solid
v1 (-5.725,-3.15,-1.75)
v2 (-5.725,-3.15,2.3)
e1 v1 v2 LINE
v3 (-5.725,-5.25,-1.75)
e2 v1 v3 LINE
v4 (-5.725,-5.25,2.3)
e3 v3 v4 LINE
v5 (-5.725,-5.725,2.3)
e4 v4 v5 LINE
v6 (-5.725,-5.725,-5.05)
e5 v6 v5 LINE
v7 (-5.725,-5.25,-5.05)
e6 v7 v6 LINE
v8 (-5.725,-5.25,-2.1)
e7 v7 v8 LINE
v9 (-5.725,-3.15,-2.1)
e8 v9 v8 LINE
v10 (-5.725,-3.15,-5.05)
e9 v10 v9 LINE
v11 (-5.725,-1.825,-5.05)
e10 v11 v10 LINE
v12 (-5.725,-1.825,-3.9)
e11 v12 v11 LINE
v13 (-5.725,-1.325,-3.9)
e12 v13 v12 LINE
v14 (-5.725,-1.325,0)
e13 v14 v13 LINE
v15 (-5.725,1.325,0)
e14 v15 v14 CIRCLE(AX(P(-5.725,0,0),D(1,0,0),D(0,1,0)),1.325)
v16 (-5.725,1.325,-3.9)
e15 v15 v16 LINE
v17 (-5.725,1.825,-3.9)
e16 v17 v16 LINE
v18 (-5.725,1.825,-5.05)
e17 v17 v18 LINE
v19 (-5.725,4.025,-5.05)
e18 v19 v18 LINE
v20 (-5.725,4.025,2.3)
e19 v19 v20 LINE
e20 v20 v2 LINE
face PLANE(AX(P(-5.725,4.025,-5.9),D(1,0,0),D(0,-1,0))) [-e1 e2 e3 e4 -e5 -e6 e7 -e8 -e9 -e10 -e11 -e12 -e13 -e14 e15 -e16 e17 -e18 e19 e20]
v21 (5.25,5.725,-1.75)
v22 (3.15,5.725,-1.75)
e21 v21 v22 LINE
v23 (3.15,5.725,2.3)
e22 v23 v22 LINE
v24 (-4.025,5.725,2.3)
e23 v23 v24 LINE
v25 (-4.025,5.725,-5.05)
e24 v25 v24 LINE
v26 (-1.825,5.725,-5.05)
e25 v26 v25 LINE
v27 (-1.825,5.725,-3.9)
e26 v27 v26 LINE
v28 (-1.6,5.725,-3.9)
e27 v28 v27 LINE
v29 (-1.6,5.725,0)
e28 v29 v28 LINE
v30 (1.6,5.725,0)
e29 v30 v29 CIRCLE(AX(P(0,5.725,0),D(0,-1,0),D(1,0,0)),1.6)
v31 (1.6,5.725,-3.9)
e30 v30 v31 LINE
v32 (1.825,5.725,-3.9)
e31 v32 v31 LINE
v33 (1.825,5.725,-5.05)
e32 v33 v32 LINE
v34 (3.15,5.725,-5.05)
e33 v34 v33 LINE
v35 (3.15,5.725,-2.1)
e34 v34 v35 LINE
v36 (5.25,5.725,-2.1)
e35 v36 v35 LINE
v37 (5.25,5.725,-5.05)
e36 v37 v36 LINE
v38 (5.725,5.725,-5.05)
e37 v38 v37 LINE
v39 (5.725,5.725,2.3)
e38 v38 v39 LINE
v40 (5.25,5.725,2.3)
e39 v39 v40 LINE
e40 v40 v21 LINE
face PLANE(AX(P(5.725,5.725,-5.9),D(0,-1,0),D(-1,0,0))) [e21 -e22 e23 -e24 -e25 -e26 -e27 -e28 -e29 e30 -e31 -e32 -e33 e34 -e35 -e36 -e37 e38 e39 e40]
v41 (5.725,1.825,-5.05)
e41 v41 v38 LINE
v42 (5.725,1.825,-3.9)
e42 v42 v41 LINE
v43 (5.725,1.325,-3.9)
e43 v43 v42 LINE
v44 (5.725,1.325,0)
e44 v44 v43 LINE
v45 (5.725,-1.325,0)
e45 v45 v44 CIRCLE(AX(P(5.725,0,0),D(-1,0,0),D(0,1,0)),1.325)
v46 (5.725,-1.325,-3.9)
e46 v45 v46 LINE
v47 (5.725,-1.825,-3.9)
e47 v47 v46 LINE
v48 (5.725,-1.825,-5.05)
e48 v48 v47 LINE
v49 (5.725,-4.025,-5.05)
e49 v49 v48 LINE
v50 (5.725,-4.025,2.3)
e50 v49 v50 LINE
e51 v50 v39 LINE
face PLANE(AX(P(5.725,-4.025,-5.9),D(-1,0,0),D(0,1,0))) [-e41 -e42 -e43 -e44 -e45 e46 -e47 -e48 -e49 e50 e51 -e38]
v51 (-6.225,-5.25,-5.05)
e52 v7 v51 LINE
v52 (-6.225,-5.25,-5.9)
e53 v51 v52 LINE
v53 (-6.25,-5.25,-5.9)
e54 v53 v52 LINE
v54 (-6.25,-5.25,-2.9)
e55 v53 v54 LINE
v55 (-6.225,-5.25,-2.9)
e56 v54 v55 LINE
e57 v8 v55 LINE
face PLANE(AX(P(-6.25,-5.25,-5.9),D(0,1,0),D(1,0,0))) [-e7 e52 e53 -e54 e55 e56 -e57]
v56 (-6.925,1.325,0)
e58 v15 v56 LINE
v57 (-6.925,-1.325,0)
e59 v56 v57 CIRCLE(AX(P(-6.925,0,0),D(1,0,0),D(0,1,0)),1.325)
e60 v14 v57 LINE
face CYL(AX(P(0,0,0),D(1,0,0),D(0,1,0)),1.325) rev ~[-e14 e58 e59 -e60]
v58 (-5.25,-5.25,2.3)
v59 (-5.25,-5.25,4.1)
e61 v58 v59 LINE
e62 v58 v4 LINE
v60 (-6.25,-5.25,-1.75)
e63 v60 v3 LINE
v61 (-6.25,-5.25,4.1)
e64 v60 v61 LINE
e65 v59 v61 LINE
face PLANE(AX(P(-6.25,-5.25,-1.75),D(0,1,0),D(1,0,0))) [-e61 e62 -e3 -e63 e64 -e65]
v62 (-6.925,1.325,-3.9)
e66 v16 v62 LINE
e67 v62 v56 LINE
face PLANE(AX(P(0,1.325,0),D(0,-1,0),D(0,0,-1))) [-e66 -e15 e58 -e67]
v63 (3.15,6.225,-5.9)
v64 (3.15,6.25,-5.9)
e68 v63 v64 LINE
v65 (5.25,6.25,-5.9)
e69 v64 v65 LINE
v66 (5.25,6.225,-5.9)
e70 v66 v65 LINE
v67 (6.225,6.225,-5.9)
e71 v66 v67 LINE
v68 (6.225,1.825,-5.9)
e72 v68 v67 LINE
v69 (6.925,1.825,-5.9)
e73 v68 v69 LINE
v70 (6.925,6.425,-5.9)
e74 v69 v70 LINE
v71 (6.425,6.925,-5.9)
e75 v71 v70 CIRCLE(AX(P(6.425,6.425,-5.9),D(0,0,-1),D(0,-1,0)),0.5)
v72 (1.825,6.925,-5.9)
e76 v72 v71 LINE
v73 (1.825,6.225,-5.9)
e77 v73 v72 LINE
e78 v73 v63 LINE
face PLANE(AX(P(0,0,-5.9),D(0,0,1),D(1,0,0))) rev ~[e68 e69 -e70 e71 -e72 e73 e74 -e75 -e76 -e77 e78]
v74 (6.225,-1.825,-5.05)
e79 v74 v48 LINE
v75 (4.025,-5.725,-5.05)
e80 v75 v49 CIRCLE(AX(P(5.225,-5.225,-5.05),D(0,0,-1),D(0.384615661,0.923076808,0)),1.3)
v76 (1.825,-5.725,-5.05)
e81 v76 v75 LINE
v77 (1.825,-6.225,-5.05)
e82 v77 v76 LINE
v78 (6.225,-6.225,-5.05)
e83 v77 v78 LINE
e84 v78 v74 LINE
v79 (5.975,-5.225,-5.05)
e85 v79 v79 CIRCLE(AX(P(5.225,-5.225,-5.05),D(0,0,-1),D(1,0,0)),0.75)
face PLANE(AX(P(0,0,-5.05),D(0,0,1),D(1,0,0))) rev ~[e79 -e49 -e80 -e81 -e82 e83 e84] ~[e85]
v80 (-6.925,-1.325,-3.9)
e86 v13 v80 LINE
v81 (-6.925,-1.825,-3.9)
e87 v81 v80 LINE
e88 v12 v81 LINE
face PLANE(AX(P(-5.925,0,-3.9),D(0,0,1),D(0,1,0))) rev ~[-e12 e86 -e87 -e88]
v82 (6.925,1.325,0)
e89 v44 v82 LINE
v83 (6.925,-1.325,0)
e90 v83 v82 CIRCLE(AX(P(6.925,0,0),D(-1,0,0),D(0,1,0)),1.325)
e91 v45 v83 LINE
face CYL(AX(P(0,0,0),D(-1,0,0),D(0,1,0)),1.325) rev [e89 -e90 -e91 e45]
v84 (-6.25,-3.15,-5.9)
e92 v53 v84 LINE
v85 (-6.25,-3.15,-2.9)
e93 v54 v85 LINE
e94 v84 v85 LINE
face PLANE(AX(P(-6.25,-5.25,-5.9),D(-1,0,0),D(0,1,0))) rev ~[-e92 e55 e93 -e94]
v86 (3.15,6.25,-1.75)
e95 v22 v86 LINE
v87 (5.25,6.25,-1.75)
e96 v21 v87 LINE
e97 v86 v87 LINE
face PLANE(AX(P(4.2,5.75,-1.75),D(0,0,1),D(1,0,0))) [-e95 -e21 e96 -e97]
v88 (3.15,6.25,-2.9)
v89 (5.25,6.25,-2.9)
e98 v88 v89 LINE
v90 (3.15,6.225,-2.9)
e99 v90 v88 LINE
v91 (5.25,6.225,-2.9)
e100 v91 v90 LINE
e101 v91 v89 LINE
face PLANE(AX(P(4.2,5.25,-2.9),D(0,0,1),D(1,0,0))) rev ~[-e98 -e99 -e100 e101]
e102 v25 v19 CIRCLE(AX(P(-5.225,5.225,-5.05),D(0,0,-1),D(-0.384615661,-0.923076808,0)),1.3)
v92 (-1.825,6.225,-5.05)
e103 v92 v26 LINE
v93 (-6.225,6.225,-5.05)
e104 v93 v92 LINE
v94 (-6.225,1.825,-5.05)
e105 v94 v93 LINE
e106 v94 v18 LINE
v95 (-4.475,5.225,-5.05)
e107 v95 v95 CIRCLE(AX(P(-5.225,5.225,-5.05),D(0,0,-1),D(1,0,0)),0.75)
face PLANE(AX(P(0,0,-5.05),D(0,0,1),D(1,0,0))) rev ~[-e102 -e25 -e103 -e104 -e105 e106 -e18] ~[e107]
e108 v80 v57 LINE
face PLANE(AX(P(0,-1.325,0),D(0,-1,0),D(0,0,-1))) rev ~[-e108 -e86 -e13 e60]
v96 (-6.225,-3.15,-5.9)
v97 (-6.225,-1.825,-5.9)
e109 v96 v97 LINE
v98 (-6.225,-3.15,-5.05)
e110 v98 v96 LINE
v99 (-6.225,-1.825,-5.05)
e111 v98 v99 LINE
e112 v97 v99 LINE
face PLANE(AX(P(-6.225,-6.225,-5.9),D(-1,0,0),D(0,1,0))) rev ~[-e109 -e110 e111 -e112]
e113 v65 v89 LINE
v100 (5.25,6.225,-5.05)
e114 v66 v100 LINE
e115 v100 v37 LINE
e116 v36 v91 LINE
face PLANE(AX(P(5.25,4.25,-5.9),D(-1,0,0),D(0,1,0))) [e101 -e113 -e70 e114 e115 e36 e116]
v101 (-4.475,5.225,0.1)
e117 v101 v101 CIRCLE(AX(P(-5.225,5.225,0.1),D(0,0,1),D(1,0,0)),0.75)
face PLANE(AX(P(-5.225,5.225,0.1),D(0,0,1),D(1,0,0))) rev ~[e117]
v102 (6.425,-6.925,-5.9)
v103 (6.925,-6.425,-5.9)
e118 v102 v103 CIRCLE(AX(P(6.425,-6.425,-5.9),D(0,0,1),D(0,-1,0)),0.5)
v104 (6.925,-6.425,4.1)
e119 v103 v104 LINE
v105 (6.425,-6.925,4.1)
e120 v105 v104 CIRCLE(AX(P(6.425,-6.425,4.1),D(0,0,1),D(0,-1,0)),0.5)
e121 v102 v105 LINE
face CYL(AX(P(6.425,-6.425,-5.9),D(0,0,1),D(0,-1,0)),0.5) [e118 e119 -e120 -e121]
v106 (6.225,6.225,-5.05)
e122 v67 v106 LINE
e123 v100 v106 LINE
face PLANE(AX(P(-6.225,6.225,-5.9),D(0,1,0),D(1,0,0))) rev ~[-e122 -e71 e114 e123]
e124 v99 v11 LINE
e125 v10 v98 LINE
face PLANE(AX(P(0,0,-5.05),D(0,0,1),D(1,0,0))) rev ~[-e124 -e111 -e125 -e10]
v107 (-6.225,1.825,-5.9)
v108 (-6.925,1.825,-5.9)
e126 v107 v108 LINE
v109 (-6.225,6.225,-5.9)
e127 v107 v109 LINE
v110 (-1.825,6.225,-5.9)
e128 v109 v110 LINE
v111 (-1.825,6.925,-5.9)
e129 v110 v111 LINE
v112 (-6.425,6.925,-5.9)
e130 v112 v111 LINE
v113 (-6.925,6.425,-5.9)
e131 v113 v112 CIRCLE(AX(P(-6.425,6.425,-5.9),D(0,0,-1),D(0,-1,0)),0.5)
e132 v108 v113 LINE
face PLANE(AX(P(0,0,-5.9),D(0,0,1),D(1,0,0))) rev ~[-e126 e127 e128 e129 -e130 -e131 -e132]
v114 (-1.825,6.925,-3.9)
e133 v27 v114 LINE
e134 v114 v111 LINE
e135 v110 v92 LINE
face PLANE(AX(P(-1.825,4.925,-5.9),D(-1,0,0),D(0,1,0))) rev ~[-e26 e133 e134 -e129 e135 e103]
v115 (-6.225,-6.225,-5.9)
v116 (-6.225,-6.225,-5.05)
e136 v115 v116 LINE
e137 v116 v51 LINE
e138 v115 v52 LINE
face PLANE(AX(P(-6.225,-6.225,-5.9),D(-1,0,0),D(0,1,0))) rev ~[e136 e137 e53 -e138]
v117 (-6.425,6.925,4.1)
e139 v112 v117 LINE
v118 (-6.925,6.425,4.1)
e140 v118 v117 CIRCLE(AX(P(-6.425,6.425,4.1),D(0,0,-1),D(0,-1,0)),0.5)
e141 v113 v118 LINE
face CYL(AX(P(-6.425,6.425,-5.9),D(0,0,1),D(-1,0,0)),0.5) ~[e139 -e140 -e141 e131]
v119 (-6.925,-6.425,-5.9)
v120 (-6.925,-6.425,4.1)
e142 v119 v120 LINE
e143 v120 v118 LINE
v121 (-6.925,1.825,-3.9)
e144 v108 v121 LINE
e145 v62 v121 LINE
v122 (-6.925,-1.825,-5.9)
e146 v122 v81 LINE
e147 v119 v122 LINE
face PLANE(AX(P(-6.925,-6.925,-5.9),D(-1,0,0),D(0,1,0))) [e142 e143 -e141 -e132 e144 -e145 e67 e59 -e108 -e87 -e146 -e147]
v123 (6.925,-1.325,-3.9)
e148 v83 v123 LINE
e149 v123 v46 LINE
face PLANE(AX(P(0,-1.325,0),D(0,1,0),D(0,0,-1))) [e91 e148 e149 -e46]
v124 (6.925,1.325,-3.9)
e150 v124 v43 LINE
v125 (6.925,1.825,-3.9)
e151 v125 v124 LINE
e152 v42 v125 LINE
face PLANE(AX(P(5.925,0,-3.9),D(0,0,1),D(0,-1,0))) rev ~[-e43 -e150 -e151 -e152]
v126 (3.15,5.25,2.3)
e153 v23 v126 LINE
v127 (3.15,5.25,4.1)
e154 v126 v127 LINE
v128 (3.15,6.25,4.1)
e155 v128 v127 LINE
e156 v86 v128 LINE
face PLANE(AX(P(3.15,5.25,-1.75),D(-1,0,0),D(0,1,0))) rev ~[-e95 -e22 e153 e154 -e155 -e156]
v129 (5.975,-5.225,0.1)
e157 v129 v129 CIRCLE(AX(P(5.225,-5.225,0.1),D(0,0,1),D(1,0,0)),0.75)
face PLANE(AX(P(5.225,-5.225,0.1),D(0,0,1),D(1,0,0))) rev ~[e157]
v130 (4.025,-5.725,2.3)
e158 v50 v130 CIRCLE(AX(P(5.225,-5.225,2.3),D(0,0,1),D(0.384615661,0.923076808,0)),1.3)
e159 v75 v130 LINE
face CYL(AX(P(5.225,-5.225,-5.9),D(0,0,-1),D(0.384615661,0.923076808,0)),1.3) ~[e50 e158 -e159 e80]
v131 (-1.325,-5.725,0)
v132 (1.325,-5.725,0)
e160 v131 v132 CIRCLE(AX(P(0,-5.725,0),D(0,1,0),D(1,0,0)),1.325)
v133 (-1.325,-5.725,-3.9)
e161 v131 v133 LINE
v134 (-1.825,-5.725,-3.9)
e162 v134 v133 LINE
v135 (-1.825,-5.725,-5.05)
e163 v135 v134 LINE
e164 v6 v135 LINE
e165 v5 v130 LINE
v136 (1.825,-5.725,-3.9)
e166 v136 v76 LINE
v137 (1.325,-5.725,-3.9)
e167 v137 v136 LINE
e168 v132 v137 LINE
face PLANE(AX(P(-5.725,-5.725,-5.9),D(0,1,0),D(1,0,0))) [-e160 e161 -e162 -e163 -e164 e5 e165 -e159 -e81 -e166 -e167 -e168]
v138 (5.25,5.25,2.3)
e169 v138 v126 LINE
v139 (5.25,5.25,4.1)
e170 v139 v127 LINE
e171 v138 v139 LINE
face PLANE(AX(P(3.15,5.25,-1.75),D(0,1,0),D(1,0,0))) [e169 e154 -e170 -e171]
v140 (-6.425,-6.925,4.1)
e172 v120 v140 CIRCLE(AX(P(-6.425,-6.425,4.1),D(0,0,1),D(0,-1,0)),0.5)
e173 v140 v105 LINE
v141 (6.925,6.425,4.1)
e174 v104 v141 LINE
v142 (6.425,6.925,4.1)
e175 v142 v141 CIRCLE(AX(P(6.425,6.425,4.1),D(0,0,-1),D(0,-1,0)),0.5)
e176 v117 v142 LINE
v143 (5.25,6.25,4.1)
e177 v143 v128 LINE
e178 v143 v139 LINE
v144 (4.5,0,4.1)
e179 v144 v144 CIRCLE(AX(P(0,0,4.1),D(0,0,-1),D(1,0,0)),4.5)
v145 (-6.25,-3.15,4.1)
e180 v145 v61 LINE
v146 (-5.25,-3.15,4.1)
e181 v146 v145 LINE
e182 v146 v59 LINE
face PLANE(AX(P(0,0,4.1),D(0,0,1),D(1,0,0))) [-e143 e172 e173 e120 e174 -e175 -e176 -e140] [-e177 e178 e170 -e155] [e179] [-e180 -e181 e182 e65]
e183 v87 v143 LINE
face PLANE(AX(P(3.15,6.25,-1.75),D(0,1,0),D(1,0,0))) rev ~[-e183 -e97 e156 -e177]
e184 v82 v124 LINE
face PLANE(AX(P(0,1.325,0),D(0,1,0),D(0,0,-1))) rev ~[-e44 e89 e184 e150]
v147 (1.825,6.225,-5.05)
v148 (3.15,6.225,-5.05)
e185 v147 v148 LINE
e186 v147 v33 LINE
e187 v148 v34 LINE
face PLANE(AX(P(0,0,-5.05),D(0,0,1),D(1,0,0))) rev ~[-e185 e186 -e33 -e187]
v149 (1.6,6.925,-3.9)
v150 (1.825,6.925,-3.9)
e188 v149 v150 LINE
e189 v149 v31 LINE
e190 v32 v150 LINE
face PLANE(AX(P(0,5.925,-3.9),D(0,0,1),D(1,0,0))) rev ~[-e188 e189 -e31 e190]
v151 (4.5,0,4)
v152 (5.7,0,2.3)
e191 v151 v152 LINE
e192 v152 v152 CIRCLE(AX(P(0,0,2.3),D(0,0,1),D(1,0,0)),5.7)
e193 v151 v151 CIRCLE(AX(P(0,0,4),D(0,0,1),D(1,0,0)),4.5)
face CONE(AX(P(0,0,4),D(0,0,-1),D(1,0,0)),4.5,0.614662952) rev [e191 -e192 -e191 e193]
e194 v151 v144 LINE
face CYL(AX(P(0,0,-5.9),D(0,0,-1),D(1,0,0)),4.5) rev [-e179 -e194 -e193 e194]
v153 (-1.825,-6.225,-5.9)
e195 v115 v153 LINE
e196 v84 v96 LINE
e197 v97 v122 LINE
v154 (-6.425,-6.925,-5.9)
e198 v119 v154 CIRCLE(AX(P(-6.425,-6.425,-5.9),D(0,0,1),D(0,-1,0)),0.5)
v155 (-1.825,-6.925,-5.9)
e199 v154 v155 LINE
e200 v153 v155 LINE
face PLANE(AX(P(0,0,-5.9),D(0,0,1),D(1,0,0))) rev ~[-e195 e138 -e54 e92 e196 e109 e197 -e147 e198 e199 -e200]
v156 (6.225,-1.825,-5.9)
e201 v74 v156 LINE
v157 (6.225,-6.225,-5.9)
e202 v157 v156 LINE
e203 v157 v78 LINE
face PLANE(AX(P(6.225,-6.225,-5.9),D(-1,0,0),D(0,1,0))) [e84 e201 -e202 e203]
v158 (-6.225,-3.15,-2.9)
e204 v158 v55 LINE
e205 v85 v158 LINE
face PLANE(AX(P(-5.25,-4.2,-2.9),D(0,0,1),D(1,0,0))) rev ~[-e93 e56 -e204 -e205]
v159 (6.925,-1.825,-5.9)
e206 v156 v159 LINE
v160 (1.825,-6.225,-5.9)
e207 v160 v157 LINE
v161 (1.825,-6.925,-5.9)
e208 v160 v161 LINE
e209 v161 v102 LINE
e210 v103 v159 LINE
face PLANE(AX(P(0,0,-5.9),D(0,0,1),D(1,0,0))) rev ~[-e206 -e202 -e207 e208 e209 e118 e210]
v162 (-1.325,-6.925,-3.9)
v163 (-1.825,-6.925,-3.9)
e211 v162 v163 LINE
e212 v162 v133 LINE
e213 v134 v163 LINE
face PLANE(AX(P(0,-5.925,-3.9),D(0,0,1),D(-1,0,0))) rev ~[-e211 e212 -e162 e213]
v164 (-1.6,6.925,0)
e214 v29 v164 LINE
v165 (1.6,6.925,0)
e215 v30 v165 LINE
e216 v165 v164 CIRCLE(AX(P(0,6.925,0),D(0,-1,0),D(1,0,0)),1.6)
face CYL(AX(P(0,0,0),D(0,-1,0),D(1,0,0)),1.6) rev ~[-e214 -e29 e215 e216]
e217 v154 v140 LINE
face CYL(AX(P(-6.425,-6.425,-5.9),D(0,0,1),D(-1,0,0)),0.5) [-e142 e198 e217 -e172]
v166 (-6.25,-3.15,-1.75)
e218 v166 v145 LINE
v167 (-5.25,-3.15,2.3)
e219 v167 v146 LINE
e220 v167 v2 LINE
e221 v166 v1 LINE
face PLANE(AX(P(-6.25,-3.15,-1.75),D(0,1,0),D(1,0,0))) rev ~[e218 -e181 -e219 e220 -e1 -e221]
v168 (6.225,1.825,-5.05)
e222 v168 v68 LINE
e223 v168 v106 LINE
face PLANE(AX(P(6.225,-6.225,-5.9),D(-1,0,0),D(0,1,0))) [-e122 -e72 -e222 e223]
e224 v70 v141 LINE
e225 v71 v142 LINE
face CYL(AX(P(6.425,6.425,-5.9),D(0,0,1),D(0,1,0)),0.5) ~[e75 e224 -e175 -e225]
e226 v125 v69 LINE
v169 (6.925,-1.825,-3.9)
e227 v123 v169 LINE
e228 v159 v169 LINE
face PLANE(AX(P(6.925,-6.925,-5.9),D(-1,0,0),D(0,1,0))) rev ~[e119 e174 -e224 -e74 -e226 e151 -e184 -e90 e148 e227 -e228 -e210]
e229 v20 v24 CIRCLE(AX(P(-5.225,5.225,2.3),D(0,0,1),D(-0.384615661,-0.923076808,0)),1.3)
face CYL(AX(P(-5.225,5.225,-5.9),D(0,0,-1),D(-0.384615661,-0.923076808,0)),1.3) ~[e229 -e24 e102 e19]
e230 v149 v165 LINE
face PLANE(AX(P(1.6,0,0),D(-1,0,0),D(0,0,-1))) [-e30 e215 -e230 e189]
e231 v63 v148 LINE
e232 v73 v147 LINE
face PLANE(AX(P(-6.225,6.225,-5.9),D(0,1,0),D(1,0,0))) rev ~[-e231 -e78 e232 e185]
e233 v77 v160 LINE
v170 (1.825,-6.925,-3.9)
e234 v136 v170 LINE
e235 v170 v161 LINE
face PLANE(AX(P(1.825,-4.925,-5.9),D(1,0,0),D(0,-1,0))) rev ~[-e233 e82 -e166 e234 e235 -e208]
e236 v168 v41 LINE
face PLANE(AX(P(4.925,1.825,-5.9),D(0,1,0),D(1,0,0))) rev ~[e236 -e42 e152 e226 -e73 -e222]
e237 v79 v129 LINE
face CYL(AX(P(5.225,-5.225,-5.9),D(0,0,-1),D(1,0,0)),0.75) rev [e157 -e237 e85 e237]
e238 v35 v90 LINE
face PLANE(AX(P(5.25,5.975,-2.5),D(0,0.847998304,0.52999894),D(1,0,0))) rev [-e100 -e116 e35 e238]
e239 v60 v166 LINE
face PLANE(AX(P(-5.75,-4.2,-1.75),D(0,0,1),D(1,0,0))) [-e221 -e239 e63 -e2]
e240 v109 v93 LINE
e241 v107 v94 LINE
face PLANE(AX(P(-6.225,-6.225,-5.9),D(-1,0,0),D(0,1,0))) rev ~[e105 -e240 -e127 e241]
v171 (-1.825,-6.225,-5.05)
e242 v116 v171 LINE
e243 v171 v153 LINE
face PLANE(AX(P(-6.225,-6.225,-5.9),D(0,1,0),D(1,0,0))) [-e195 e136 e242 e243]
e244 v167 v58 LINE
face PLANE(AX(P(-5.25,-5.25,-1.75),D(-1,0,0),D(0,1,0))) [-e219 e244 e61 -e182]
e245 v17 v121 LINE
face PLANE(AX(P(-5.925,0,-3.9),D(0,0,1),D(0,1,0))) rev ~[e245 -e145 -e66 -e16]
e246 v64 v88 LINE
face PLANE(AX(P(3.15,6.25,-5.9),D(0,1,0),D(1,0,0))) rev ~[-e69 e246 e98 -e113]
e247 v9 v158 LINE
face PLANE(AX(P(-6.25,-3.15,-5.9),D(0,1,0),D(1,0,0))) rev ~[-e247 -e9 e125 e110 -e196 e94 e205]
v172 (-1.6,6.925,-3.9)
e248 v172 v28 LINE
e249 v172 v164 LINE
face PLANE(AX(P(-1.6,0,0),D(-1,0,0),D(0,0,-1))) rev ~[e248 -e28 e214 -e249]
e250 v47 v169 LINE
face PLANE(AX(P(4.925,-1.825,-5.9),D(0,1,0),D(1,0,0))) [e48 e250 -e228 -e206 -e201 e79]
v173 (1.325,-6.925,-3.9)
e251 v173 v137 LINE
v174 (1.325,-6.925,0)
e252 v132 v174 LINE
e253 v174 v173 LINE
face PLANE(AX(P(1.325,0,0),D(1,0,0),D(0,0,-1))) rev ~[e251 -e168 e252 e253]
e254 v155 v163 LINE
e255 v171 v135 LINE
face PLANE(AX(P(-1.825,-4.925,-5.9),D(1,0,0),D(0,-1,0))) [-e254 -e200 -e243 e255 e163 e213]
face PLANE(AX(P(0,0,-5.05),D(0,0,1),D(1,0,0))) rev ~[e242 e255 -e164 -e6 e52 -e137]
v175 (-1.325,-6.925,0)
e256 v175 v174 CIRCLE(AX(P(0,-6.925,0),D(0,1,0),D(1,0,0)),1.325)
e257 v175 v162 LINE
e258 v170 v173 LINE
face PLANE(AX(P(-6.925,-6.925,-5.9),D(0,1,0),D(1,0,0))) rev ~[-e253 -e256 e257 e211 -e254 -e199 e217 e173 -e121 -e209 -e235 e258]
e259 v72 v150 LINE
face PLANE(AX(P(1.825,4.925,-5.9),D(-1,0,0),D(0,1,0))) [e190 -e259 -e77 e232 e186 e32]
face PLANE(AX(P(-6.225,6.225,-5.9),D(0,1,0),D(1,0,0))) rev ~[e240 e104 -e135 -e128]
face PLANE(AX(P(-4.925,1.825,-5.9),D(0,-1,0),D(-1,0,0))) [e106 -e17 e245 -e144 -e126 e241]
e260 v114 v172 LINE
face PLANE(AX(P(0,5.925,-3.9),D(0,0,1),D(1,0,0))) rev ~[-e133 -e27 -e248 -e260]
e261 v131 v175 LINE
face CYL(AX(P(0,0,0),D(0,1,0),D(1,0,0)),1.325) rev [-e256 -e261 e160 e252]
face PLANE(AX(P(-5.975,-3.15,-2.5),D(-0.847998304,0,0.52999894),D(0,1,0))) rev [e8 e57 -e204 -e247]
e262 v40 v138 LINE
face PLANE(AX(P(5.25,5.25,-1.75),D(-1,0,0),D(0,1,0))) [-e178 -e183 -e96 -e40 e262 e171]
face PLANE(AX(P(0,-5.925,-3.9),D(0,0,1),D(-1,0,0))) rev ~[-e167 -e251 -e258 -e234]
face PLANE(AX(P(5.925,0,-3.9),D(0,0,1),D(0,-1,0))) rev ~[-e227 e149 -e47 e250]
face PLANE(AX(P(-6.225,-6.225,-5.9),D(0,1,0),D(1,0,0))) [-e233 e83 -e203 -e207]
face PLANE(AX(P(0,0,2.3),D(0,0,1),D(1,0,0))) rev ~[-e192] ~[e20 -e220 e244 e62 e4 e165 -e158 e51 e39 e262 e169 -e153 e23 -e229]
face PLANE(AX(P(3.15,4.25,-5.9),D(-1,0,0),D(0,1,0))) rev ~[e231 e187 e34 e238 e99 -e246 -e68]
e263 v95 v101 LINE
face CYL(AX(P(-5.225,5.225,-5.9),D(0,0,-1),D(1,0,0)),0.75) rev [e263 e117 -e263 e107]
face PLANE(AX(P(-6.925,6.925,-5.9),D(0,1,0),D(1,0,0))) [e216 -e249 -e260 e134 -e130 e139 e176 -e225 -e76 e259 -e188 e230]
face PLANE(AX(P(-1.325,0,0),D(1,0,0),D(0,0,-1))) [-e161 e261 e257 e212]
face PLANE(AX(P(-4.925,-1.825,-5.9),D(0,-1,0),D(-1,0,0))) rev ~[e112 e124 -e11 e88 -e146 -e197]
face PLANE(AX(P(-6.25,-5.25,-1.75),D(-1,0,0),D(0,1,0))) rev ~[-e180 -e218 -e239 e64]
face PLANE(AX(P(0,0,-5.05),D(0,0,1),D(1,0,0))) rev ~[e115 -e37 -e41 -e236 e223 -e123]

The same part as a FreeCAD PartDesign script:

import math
import FreeCAD as App
import Part
import Sketcher

V = App.Vector
Q = App.Units.Quantity


def edges_at(feature, points):
    """Names of the edges that pass closest to the given points."""
    edges = feature.Shape.Edges
    near = lambda p: min(range(len(edges)), key=lambda i: edges[i].distToShape(Part.Vertex(*p))[0])
    return sorted({f"Edge{near(p) + 1}" for p in points})


def add_polygon(sketch, points):
    """Adds a closed chain of lines whose ends are joined by coincident constraints."""
    first, n = sketch.GeometryCount, len(points)
    for a, b in zip(points, points[1:] + points[:1]):
        sketch.addGeometry(Part.LineSegment(App.Vector(*a, 0), App.Vector(*b, 0)), False)
    for i in range(n):
        sketch.addConstraint(Sketcher.Constraint("Coincident", first + i, 2, first + (i + 1) % n, 1))

doc = App.newDocument("Part")
body = doc.addObject("PartDesign::Body", "Body")

# Sketch on XY plane
sketch1 = body.newObject("Sketcher::SketchObject", "Sketch")
sketch1.AttachmentSupport = (doc.getObject("XY_Plane"), [""])
sketch1.MapMode = "FlatFace"
add_polygon(sketch1, [(-7, 7), (-7, -7), (7, -7), (7, 7)])  # lines 0-3
sketch1.addConstraint(Sketcher.Constraint("Vertical", 0))
sketch1.addConstraint(Sketcher.Constraint("Horizontal", 1))
sketch1.addConstraint(Sketcher.Constraint("Vertical", 2))
sketch1.addConstraint(Sketcher.Constraint("Horizontal", 3))
sketch1.addConstraint(Sketcher.Constraint("Symmetric", 0, 2, 2, 2, -1, 1))
sketch1.addConstraint(Sketcher.Constraint("Equal", 3, 0))
sketch1.addConstraint(Sketcher.Constraint("DistanceX", 1, 1, 1, 2, Q("13.85 mm")))
pad1 = body.newObject("PartDesign::Pad", "Pad")
pad1.Profile = sketch1
pad1.Length = 10

# Sketch on XY plane
sketch2 = body.newObject("Sketcher::SketchObject", "Sketch001")
sketch2.AttachmentSupport = (doc.getObject("XY_Plane"), [""])
sketch2.MapMode = "FlatFace"
sketch2.addGeometry(Part.LineSegment(V(-5.7, 4, 0), V(-5.7, -5.7, 0)), False)
sketch2.addGeometry(Part.LineSegment(V(-5.7, -5.7, 0), V(4, -5.7, 0)), False)
sketch2.addGeometry(Part.ArcOfCircle(Part.Circle(V(5.2, -5.2, 0), V(0, 0, 1), 1.3), math.radians(67), math.radians(203)), False)
sketch2.addGeometry(Part.LineSegment(V(5.7, -4, 0), V(5.7, 5.7, 0)), False)
sketch2.addGeometry(Part.LineSegment(V(5.7, 5.7, 0), V(-4, 5.7, 0)), False)
sketch2.addGeometry(Part.ArcOfCircle(Part.Circle(V(-5.2, 5.2, 0), V(0, 0, 1), 1.3), math.radians(-113), math.radians(23)), False)
sketch2.addConstraint(Sketcher.Constraint("Coincident", 0, 2, 1, 1))
sketch2.addConstraint(Sketcher.Constraint("Coincident", 1, 2, 2, 2))
sketch2.addConstraint(Sketcher.Constraint("Coincident", 2, 1, 3, 1))
sketch2.addConstraint(Sketcher.Constraint("Coincident", 3, 2, 4, 1))
sketch2.addConstraint(Sketcher.Constraint("Coincident", 4, 2, 5, 2))
sketch2.addConstraint(Sketcher.Constraint("Coincident", 5, 1, 0, 1))
sketch2.addConstraint(Sketcher.Constraint("Vertical", 0))
sketch2.addConstraint(Sketcher.Constraint("Horizontal", 1))
sketch2.addConstraint(Sketcher.Constraint("Vertical", 3))
sketch2.addConstraint(Sketcher.Constraint("Horizontal", 4))
sketch2.addConstraint(Sketcher.Constraint("Equal", 2, 5))
sketch2.addConstraint(Sketcher.Constraint("Symmetric", 2, 3, 5, 3, -1, 1))
sketch2.addConstraint(Sketcher.Constraint("Symmetric", 0, 2, 3, 2, -1, 1))
sketch2.addConstraint(Sketcher.Constraint("Equal", 4, 0))
sketch2.addConstraint(Sketcher.Constraint("Radius", 2, Q("1.3 mm")))
sketch2.addConstraint(Sketcher.Constraint("DistanceX", 1, 1, 1, 2, Q("9.75 mm")))
sketch2.addConstraint(Sketcher.Constraint("DistanceY", 0, 2, 2, 3, Q("0.5 mm")))
sketch2.addConstraint(Sketcher.Constraint("DistanceX", 0, 2, 5, 3, Q("0.5 mm")))
pocket1 = body.newObject("PartDesign::Pocket", "Pocket")
pocket1.Profile = sketch2
pocket1.Length = 8.2
pocket1.Reversed = True

# Sketch on XY plane
sketch3 = body.newObject("Sketcher::SketchObject", "Sketch002")
sketch3.AttachmentSupport = (doc.getObject("XY_Plane"), [""])
sketch3.MapMode = "FlatFace"
sketch3.addGeometry(Part.Circle(V(0, 0, 0), V(0, 0, 1), 4.5), False)
sketch3.addConstraint(Sketcher.Constraint("Coincident", 0, 3, -1, 1))
sketch3.addConstraint(Sketcher.Constraint("Diameter", 0, Q("9 mm")))
pocket2 = body.newObject("PartDesign::Pocket", "Pocket001")
pocket2.Profile = sketch3
pocket2.Type = "ThroughAll"
pocket2.Midplane = True

# Sketch on XZ plane
sketch4 = body.newObject("Sketcher::SketchObject", "Sketch003")
sketch4.AttachmentSupport = (doc.getObject("XZ_Plane"), [""])
sketch4.MapMode = "FlatFace"
add_polygon(sketch4, [(5.7, 8.2), (4.5, 9.9), (4.5, 8.2)])  # lines 0-2
sketch4.addConstraint(Sketcher.Constraint("Vertical", 1))
sketch4.addConstraint(Sketcher.Constraint("Horizontal", 2))
sketch4.addConstraint(Sketcher.Constraint("DistanceX", 2, 1, 2, 2, Q("1.2 mm")))
sketch4.addConstraint(Sketcher.Constraint("DistanceY", 1, 2, 1, 1, Q("1.7 mm")))
sketch4.addConstraint(Sketcher.Constraint("DistanceX", -1, 1, 0, 2, Q("4.5 mm")))
sketch4.addConstraint(Sketcher.Constraint("DistanceY", -1, 1, 0, 2, Q("9.9 mm")))
groove = body.newObject("PartDesign::Groove", "Groove")
groove.Profile = sketch4
groove.ReferenceAxis = (sketch4, ["V_Axis"])
groove.Angle = 360

# Sketch on XY plane
sketch5 = body.newObject("Sketcher::SketchObject", "Sketch004")
sketch5.AttachmentSupport = (doc.getObject("XY_Plane"), [""])
sketch5.MapMode = "FlatFace"
add_polygon(sketch5, [(-6, 6), (-6, -6), (6, -6), (6, 6)])  # lines 0-3
sketch5.addConstraint(Sketcher.Constraint("Vertical", 0))
sketch5.addConstraint(Sketcher.Constraint("Horizontal", 1))
sketch5.addConstraint(Sketcher.Constraint("Vertical", 2))
sketch5.addConstraint(Sketcher.Constraint("Horizontal", 3))
sketch5.addConstraint(Sketcher.Constraint("Symmetric", 0, 2, 2, 2, -1, 1))
sketch5.addConstraint(Sketcher.Constraint("Equal", 3, 0))
sketch5.addConstraint(Sketcher.Constraint("DistanceX", 1, 1, 1, 2, Q("12.45 mm")))
pocket3 = body.newObject("PartDesign::Pocket", "Pocket002")
pocket3.Profile = sketch5
pocket3.Length = 0.85
pocket3.Reversed = True

# Sketch on XY plane
sketch6 = body.newObject("Sketcher::SketchObject", "Sketch005")
sketch6.AttachmentSupport = (doc.getObject("XY_Plane"), [""])
sketch6.MapMode = "FlatFace"
add_polygon(sketch6, [(-1.8, 6.9), (-1.8, 4.9), (1.8, 4.9), (1.8, 6.9)])  # lines 0-3
sketch6.addConstraint(Sketcher.Constraint("Vertical", 0))
sketch6.addConstraint(Sketcher.Constraint("Horizontal", 1))
sketch6.addConstraint(Sketcher.Constraint("Vertical", 2))
sketch6.addConstraint(Sketcher.Constraint("Horizontal", 3))
sketch6.addConstraint(Sketcher.Constraint("DistanceY", 0, 2, 0, 1, Q("2 mm")))
sketch6.addConstraint(Sketcher.Constraint("DistanceX", 1, 1, 1, 2, Q("3.65 mm")))
sketch6.addConstraint(Sketcher.Constraint("DistanceX", 0, 2, -1, 1, Q("1.825 mm")))
sketch6.addConstraint(Sketcher.Constraint("DistanceY", -1, 1, 0, 2, Q("4.925 mm")))
pocket4 = body.newObject("PartDesign::Pocket", "Pocket003")
pocket4.Profile = sketch6
pocket4.Length = 2
pocket4.Reversed = True
doc.recompute()

polarpattern = body.newObject("PartDesign::PolarPattern", "PolarPattern")
polarpattern.Originals = [pocket4]
polarpattern.Axis = (doc.getObject("Z_Axis"), [""])
polarpattern.Angle = 360
polarpattern.Occurrences = 4
body.Tip = polarpattern

# Sketch on XZ plane
sketch7 = body.newObject("Sketcher::SketchObject", "Sketch006")
sketch7.AttachmentSupport = (doc.getObject("XZ_Plane"), [""])
sketch7.MapMode = "FlatFace"
sketch7.addGeometry(Part.ArcOfCircle(Part.Circle(V(0, 5.9, 0), V(0, 0, 1), 1.6), math.radians(0), math.radians(180)), False)
sketch7.addGeometry(Part.LineSegment(V(-1.6, 5.9, 0), V(-1.6, 1.9, 0)), False)
sketch7.addGeometry(Part.LineSegment(V(-1.6, 1.9, 0), V(-1.82, 1.9, 0)), False)
sketch7.addGeometry(Part.LineSegment(V(-1.82, 1.9, 0), V(-1.82, -0.1, 0)), False)
sketch7.addGeometry(Part.LineSegment(V(-1.82, -0.1, 0), V(1.82, -0.1, 0)), False)
sketch7.addGeometry(Part.LineSegment(V(1.82, -0.1, 0), V(1.82, 1.9, 0)), False)
sketch7.addGeometry(Part.LineSegment(V(1.82, 1.9, 0), V(1.6, 1.9, 0)), False)
sketch7.addGeometry(Part.LineSegment(V(1.6, 1.9, 0), V(1.6, 5.9, 0)), False)
sketch7.addConstraint(Sketcher.Constraint("Tangent", 0, 2, 1, 1))
sketch7.addConstraint(Sketcher.Constraint("Coincident", 1, 2, 2, 1))
sketch7.addConstraint(Sketcher.Constraint("Coincident", 2, 2, 3, 1))
sketch7.addConstraint(Sketcher.Constraint("Coincident", 3, 2, 4, 1))
sketch7.addConstraint(Sketcher.Constraint("Coincident", 4, 2, 5, 1))
sketch7.addConstraint(Sketcher.Constraint("Coincident", 5, 2, 6, 1))
sketch7.addConstraint(Sketcher.Constraint("Coincident", 6, 2, 7, 1))
sketch7.addConstraint(Sketcher.Constraint("Tangent", 7, 2, 0, 1))
sketch7.addConstraint(Sketcher.Constraint("Vertical", 1))
sketch7.addConstraint(Sketcher.Constraint("Horizontal", 2))
sketch7.addConstraint(Sketcher.Constraint("Vertical", 3))
sketch7.addConstraint(Sketcher.Constraint("Horizontal", 4))
sketch7.addConstraint(Sketcher.Constraint("Vertical", 5))
sketch7.addConstraint(Sketcher.Constraint("Horizontal", 6))
sketch7.addConstraint(Sketcher.Constraint("Vertical", 7))
sketch7.addConstraint(Sketcher.Constraint("Symmetric", 2, 2, 5, 2, -2))
sketch7.addConstraint(Sketcher.Constraint("PointOnObject", 0, 3, -2))
sketch7.addConstraint(Sketcher.Constraint("Radius", 0, Q("1.6 mm")))
sketch7.addConstraint(Sketcher.Constraint("DistanceY", 1, 2, 1, 1, Q("4 mm")))
sketch7.addConstraint(Sketcher.Constraint("DistanceY", 3, 2, 3, 1, Q("2 mm")))
sketch7.addConstraint(Sketcher.Constraint("DistanceX", 4, 1, 4, 2, Q("3.65 mm")))
sketch7.addConstraint(Sketcher.Constraint("DistanceY", -1, 1, 0, 3, Q("5.9 mm")))
pocket5 = body.newObject("PartDesign::Pocket", "Pocket004")
pocket5.Profile = sketch7
pocket5.Type = "ThroughAll"

# Sketch on XZ plane
sketch8 = body.newObject("Sketcher::SketchObject", "Sketch007")
sketch8.AttachmentSupport = (doc.getObject("XZ_Plane"), [""])
sketch8.MapMode = "FlatFace"
sketch8.addGeometry(Part.ArcOfCircle(Part.Circle(V(0, 5.9, 0), V(0, 0, 1), 1.3), math.radians(0), math.radians(180)), False)
sketch8.addGeometry(Part.LineSegment(V(-1.3, 5.9, 0), V(-1.3, 1.9, 0)), False)
sketch8.addGeometry(Part.LineSegment(V(-1.3, 1.9, 0), V(-1.8, 1.9, 0)), False)
sketch8.addGeometry(Part.LineSegment(V(-1.8, 1.9, 0), V(-1.8, -0.1, 0)), False)
sketch8.addGeometry(Part.LineSegment(V(-1.8, -0.1, 0), V(1.8, -0.1, 0)), False)
sketch8.addGeometry(Part.LineSegment(V(1.8, -0.1, 0), V(1.8, 1.9, 0)), False)
sketch8.addGeometry(Part.LineSegment(V(1.8, 1.9, 0), V(1.3, 1.9, 0)), False)
sketch8.addGeometry(Part.LineSegment(V(1.3, 1.9, 0), V(1.3, 5.9, 0)), False)
sketch8.addConstraint(Sketcher.Constraint("Tangent", 0, 2, 1, 1))
sketch8.addConstraint(Sketcher.Constraint("Coincident", 1, 2, 2, 1))
sketch8.addConstraint(Sketcher.Constraint("Coincident", 2, 2, 3, 1))
sketch8.addConstraint(Sketcher.Constraint("Coincident", 3, 2, 4, 1))
sketch8.addConstraint(Sketcher.Constraint("Coincident", 4, 2, 5, 1))
sketch8.addConstraint(Sketcher.Constraint("Coincident", 5, 2, 6, 1))
sketch8.addConstraint(Sketcher.Constraint("Coincident", 6, 2, 7, 1))
sketch8.addConstraint(Sketcher.Constraint("Tangent", 7, 2, 0, 1))
sketch8.addConstraint(Sketcher.Constraint("Vertical", 1))
sketch8.addConstraint(Sketcher.Constraint("Horizontal", 2))
sketch8.addConstraint(Sketcher.Constraint("Vertical", 3))
sketch8.addConstraint(Sketcher.Constraint("Horizontal", 4))
sketch8.addConstraint(Sketcher.Constraint("Vertical", 5))
sketch8.addConstraint(Sketcher.Constraint("Horizontal", 6))
sketch8.addConstraint(Sketcher.Constraint("Vertical", 7))
sketch8.addConstraint(Sketcher.Constraint("Symmetric", 2, 2, 5, 2, -2))
sketch8.addConstraint(Sketcher.Constraint("PointOnObject", 0, 3, -2))
sketch8.addConstraint(Sketcher.Constraint("DistanceY", 1, 2, 1, 1, Q("4 mm")))
sketch8.addConstraint(Sketcher.Constraint("DistanceY", 3, 2, 3, 1, Q("2 mm")))
sketch8.addConstraint(Sketcher.Constraint("DistanceX", 2, 2, 2, 1, Q("0.5 mm")))
sketch8.addConstraint(Sketcher.Constraint("Radius", 0, Q("1.325 mm")))
sketch8.addConstraint(Sketcher.Constraint("DistanceY", -1, 1, 0, 3, Q("5.9 mm")))
pocket6 = body.newObject("PartDesign::Pocket", "Pocket005")
pocket6.Profile = sketch8
pocket6.Type = "ThroughAll"
pocket6.Reversed = True

# Sketch on YZ plane
sketch9 = body.newObject("Sketcher::SketchObject", "Sketch008")
sketch9.AttachmentSupport = (doc.getObject("YZ_Plane"), [""])
sketch9.MapMode = "FlatFace"
sketch9.addGeometry(Part.ArcOfCircle(Part.Circle(V(0, 5.9, 0), V(0, 0, 1), 1.3), math.radians(0), math.radians(180)), False)
sketch9.addGeometry(Part.LineSegment(V(-1.3, 5.9, 0), V(-1.3, 1.9, 0)), False)
sketch9.addGeometry(Part.LineSegment(V(-1.3, 1.9, 0), V(-1.8, 1.9, 0)), False)
sketch9.addGeometry(Part.LineSegment(V(-1.8, 1.9, 0), V(-1.8, -0.1, 0)), False)
sketch9.addGeometry(Part.LineSegment(V(-1.8, -0.1, 0), V(1.8, -0.1, 0)), False)
sketch9.addGeometry(Part.LineSegment(V(1.8, -0.1, 0), V(1.8, 1.9, 0)), False)
sketch9.addGeometry(Part.LineSegment(V(1.8, 1.9, 0), V(1.3, 1.9, 0)), False)
sketch9.addGeometry(Part.LineSegment(V(1.3, 1.9, 0), V(1.3, 5.9, 0)), False)
sketch9.addConstraint(Sketcher.Constraint("Tangent", 0, 2, 1, 1))
sketch9.addConstraint(Sketcher.Constraint("Coincident", 1, 2, 2, 1))
sketch9.addConstraint(Sketcher.Constraint("Coincident", 2, 2, 3, 1))
sketch9.addConstraint(Sketcher.Constraint("Coincident", 3, 2, 4, 1))
sketch9.addConstraint(Sketcher.Constraint("Coincident", 4, 2, 5, 1))
sketch9.addConstraint(Sketcher.Constraint("Coincident", 5, 2, 6, 1))
sketch9.addConstraint(Sketcher.Constraint("Coincident", 6, 2, 7, 1))
sketch9.addConstraint(Sketcher.Constraint("Tangent", 7, 2, 0, 1))
sketch9.addConstraint(Sketcher.Constraint("Vertical", 1))
sketch9.addConstraint(Sketcher.Constraint("Horizontal", 2))
sketch9.addConstraint(Sketcher.Constraint("Vertical", 3))
sketch9.addConstraint(Sketcher.Constraint("Horizontal", 4))
sketch9.addConstraint(Sketcher.Constraint("Vertical", 5))
sketch9.addConstraint(Sketcher.Constraint("Horizontal", 6))
sketch9.addConstraint(Sketcher.Constraint("Vertical", 7))
sketch9.addConstraint(Sketcher.Constraint("Symmetric", 2, 2, 5, 2, -2))
sketch9.addConstraint(Sketcher.Constraint("PointOnObject", 0, 3, -2))
sketch9.addConstraint(Sketcher.Constraint("DistanceY", 1, 2, 1, 1, Q("4 mm")))
sketch9.addConstraint(Sketcher.Constraint("DistanceY", 3, 2, 3, 1, Q("2 mm")))
sketch9.addConstraint(Sketcher.Constraint("DistanceX", 2, 2, 2, 1, Q("0.5 mm")))
sketch9.addConstraint(Sketcher.Constraint("Radius", 0, Q("1.325 mm")))
sketch9.addConstraint(Sketcher.Constraint("DistanceY", -1, 1, 0, 3, Q("5.9 mm")))
pocket7 = body.newObject("PartDesign::Pocket", "Pocket006")
pocket7.Profile = sketch9
pocket7.Type = "ThroughAll"
pocket7.Reversed = True

# Sketch on YZ plane
sketch10 = body.newObject("Sketcher::SketchObject", "Sketch009")
sketch10.AttachmentSupport = (doc.getObject("YZ_Plane"), [""])
sketch10.MapMode = "FlatFace"
sketch10.addGeometry(Part.ArcOfCircle(Part.Circle(V(0, 5.9, 0), V(0, 0, 1), 1.3), math.radians(0), math.radians(180)), False)
sketch10.addGeometry(Part.LineSegment(V(-1.3, 5.9, 0), V(-1.3, 2, 0)), False)
sketch10.addGeometry(Part.LineSegment(V(-1.3, 2, 0), V(-1.8, 2, 0)), False)
sketch10.addGeometry(Part.LineSegment(V(-1.8, 2, 0), V(-1.8, 0, 0)), False)
sketch10.addGeometry(Part.LineSegment(V(-1.8, 0, 0), V(1.8, 0, 0)), False)
sketch10.addGeometry(Part.LineSegment(V(1.8, 0, 0), V(1.8, 2, 0)), False)
sketch10.addGeometry(Part.LineSegment(V(1.8, 2, 0), V(1.3, 2, 0)), False)
sketch10.addGeometry(Part.LineSegment(V(1.3, 2, 0), V(1.3, 5.9, 0)), False)
sketch10.addConstraint(Sketcher.Constraint("Tangent", 0, 2, 1, 1))
sketch10.addConstraint(Sketcher.Constraint("Coincident", 1, 2, 2, 1))
sketch10.addConstraint(Sketcher.Constraint("Coincident", 2, 2, 3, 1))
sketch10.addConstraint(Sketcher.Constraint("Coincident", 3, 2, 4, 1))
sketch10.addConstraint(Sketcher.Constraint("Coincident", 4, 2, 5, 1))
sketch10.addConstraint(Sketcher.Constraint("Coincident", 5, 2, 6, 1))
sketch10.addConstraint(Sketcher.Constraint("Coincident", 6, 2, 7, 1))
sketch10.addConstraint(Sketcher.Constraint("Tangent", 7, 2, 0, 1))
sketch10.addConstraint(Sketcher.Constraint("Vertical", 1))
sketch10.addConstraint(Sketcher.Constraint("Horizontal", 2))
sketch10.addConstraint(Sketcher.Constraint("Vertical", 3))
sketch10.addConstraint(Sketcher.Constraint("Horizontal", 4))
sketch10.addConstraint(Sketcher.Constraint("Vertical", 5))
sketch10.addConstraint(Sketcher.Constraint("Horizontal", 6))
sketch10.addConstraint(Sketcher.Constraint("Vertical", 7))
sketch10.addConstraint(Sketcher.Constraint("Symmetric", 3, 2, 4, 2, -1, 1))
sketch10.addConstraint(Sketcher.Constraint("Symmetric", 1, 2, 6, 2, -2))
sketch10.addConstraint(Sketcher.Constraint("DistanceY", 3, 2, 3, 1, Q("2 mm")))
sketch10.addConstraint(Sketcher.Constraint("DistanceX", 2, 2, 2, 1, Q("0.5 mm")))
sketch10.addConstraint(Sketcher.Constraint("DistanceY", 1, 2, 1, 1, Q("3.9 mm")))
sketch10.addConstraint(Sketcher.Constraint("Radius", 0, Q("1.325 mm")))
pocket8 = body.newObject("PartDesign::Pocket", "Pocket007")
pocket8.Profile = sketch10
pocket8.Type = "ThroughAll"

# Sketch on XY plane
sketch11 = body.newObject("Sketcher::SketchObject", "Sketch010")
sketch11.AttachmentSupport = (doc.getObject("XY_Plane"), [""])
sketch11.MapMode = "FlatFace"
sketch11.addGeometry(Part.Circle(V(-5.2, 5.2, 0), V(0, 0, 1), 0.8), False)
sketch11.addGeometry(Part.Circle(V(5.2, -5.2, 0), V(0, 0, 1), 0.8), False)
sketch11.addConstraint(Sketcher.Constraint("Equal", 0, 1))
sketch11.addConstraint(Sketcher.Constraint("Symmetric", 0, 3, 1, 3, -1, 1))
sketch11.addConstraint(Sketcher.Constraint("Diameter", 0, Q("1.5 mm")))
sketch11.addConstraint(Sketcher.Constraint("DistanceX", 0, 3, 1, 3, Q("10.45 mm")))
sketch11.addConstraint(Sketcher.Constraint("DistanceY", 1, 3, 0, 3, Q("10.45 mm")))
pocket9 = body.newObject("PartDesign::Pocket", "Pocket008")
pocket9.Profile = sketch11
pocket9.Length = 6
pocket9.Reversed = True

# Sketch on XY plane
sketch12 = body.newObject("Sketcher::SketchObject", "Sketch011")
sketch12.AttachmentSupport = (doc.getObject("XY_Plane"), [""])
sketch12.MapMode = "FlatFace"
add_polygon(sketch12, [(-6.2, -3.1), (-6.2, -5.2), (-4.2, -5.2), (-4.2, -3.1)])  # lines 0-3
add_polygon(sketch12, [(3.1, 6.2), (3.1, 4.2), (5.2, 4.2), (5.2, 6.2)])  # lines 4-7
sketch12.addConstraint(Sketcher.Constraint("Vertical", 0))
sketch12.addConstraint(Sketcher.Constraint("Horizontal", 1))
sketch12.addConstraint(Sketcher.Constraint("Vertical", 2))
sketch12.addConstraint(Sketcher.Constraint("Horizontal", 3))
sketch12.addConstraint(Sketcher.Constraint("Vertical", 4))
sketch12.addConstraint(Sketcher.Constraint("Horizontal", 5))
sketch12.addConstraint(Sketcher.Constraint("Vertical", 6))
sketch12.addConstraint(Sketcher.Constraint("Horizontal", 7))
sketch12.addConstraint(Sketcher.Constraint("Equal", 7, 0))
sketch12.addConstraint(Sketcher.Constraint("Equal", 3, 4))
sketch12.addConstraint(Sketcher.Constraint("DistanceX", 1, 1, 1, 2, Q("2 mm")))
sketch12.addConstraint(Sketcher.Constraint("DistanceX", 5, 1, 5, 2, Q("2.1 mm")))
sketch12.addConstraint(Sketcher.Constraint("DistanceX", 2, 2, 4, 2, Q("7.4 mm")))
sketch12.addConstraint(Sketcher.Constraint("DistanceY", 2, 2, 4, 2, Q("7.4 mm")))
sketch12.addConstraint(Sketcher.Constraint("DistanceX", 0, 2, -1, 1, Q("6.25 mm")))
sketch12.addConstraint(Sketcher.Constraint("DistanceY", 0, 2, -1, 1, Q("5.25 mm")))
pocket10 = body.newObject("PartDesign::Pocket", "Pocket009")
pocket10.Profile = sketch12
pocket10.Length = 3
pocket10.Reversed = True

# Sketch on XY plane
sketch13 = body.newObject("Sketcher::SketchObject", "Sketch012")
sketch13.AttachmentSupport = (doc.getObject("XY_Plane"), [""])
sketch13.MapMode = "FlatFace"
sketch13.AttachmentOffset = App.Placement(V(0, 0, 4.15), App.Rotation())
add_polygon(sketch13, [(-6.2, -3.1), (-6.2, -5.2), (-5.2, -5.2), (-5.2, -3.1)])  # lines 0-3
add_polygon(sketch13, [(3.1, 6.2), (3.1, 5.2), (5.2, 5.2), (5.2, 6.2)])  # lines 4-7
sketch13.addConstraint(Sketcher.Constraint("Vertical", 0))
sketch13.addConstraint(Sketcher.Constraint("Horizontal", 1))
sketch13.addConstraint(Sketcher.Constraint("Vertical", 2))
sketch13.addConstraint(Sketcher.Constraint("Horizontal", 3))
sketch13.addConstraint(Sketcher.Constraint("Vertical", 4))
sketch13.addConstraint(Sketcher.Constraint("Horizontal", 5))
sketch13.addConstraint(Sketcher.Constraint("Vertical", 6))
sketch13.addConstraint(Sketcher.Constraint("Horizontal", 7))
sketch13.addConstraint(Sketcher.Constraint("Symmetric", 1, 2, 5, 2, -1, 1))
sketch13.addConstraint(Sketcher.Constraint("Equal", 7, 0))
sketch13.addConstraint(Sketcher.Constraint("Equal", 3, 4))
sketch13.addConstraint(Sketcher.Constraint("DistanceX", 1, 1, 1, 2, Q("1 mm")))
sketch13.addConstraint(Sketcher.Constraint("DistanceX", 5, 1, 5, 2, Q("2.1 mm")))
sketch13.addConstraint(Sketcher.Constraint("DistanceX", 2, 2, 4, 2, Q("8.4 mm")))
sketch13.addConstraint(Sketcher.Constraint("DistanceY", 2, 2, 4, 2, Q("8.4 mm")))
pocket11 = body.newObject("PartDesign::Pocket", "Pocket010")
pocket11.Profile = sketch13
pocket11.Type = "ThroughAll"
pocket11.Reversed = True
doc.recompute()

fillet = body.newObject("PartDesign::Fillet", "Fillet")
fillet.Base = (pocket11, edges_at(pocket11, [
    (-6.925, 6.925, 5),
    (-6.925, -6.925, 5),
    (6.925, -6.925, 5),
    (6.925, 6.925, 5),
]))
fillet.Radius = 0.5
doc.recompute()

chamfer = body.newObject("PartDesign::Chamfer", "Chamfer")
chamfer.Base = (fillet, edges_at(fillet, [(-5.725, -4.2, 3)]))
chamfer.ChamferType = "Two distances"
chamfer.Size = 0.8
chamfer.Size2 = 0.5
doc.recompute()

chamfer2 = body.newObject("PartDesign::Chamfer", "Chamfer001")
chamfer2.Base = (chamfer, edges_at(chamfer, [(4.2, 5.725, 3)]))
chamfer2.ChamferType = "Two distances"
chamfer2.Size = 0.8
chamfer2.Size2 = 0.5
body2 = doc.addObject("PartDesign::Body", "Body001")
doc.recompute()

body.Placement = App.Placement(V(0, 0, -5.9), App.Rotation(V(0, 0, 1), 0))
boolean = body2.newObject("PartDesign::Boolean", "Boolean")
boolean.Type = "Fuse"
boolean.addObjects([body])

doc.recompute()
